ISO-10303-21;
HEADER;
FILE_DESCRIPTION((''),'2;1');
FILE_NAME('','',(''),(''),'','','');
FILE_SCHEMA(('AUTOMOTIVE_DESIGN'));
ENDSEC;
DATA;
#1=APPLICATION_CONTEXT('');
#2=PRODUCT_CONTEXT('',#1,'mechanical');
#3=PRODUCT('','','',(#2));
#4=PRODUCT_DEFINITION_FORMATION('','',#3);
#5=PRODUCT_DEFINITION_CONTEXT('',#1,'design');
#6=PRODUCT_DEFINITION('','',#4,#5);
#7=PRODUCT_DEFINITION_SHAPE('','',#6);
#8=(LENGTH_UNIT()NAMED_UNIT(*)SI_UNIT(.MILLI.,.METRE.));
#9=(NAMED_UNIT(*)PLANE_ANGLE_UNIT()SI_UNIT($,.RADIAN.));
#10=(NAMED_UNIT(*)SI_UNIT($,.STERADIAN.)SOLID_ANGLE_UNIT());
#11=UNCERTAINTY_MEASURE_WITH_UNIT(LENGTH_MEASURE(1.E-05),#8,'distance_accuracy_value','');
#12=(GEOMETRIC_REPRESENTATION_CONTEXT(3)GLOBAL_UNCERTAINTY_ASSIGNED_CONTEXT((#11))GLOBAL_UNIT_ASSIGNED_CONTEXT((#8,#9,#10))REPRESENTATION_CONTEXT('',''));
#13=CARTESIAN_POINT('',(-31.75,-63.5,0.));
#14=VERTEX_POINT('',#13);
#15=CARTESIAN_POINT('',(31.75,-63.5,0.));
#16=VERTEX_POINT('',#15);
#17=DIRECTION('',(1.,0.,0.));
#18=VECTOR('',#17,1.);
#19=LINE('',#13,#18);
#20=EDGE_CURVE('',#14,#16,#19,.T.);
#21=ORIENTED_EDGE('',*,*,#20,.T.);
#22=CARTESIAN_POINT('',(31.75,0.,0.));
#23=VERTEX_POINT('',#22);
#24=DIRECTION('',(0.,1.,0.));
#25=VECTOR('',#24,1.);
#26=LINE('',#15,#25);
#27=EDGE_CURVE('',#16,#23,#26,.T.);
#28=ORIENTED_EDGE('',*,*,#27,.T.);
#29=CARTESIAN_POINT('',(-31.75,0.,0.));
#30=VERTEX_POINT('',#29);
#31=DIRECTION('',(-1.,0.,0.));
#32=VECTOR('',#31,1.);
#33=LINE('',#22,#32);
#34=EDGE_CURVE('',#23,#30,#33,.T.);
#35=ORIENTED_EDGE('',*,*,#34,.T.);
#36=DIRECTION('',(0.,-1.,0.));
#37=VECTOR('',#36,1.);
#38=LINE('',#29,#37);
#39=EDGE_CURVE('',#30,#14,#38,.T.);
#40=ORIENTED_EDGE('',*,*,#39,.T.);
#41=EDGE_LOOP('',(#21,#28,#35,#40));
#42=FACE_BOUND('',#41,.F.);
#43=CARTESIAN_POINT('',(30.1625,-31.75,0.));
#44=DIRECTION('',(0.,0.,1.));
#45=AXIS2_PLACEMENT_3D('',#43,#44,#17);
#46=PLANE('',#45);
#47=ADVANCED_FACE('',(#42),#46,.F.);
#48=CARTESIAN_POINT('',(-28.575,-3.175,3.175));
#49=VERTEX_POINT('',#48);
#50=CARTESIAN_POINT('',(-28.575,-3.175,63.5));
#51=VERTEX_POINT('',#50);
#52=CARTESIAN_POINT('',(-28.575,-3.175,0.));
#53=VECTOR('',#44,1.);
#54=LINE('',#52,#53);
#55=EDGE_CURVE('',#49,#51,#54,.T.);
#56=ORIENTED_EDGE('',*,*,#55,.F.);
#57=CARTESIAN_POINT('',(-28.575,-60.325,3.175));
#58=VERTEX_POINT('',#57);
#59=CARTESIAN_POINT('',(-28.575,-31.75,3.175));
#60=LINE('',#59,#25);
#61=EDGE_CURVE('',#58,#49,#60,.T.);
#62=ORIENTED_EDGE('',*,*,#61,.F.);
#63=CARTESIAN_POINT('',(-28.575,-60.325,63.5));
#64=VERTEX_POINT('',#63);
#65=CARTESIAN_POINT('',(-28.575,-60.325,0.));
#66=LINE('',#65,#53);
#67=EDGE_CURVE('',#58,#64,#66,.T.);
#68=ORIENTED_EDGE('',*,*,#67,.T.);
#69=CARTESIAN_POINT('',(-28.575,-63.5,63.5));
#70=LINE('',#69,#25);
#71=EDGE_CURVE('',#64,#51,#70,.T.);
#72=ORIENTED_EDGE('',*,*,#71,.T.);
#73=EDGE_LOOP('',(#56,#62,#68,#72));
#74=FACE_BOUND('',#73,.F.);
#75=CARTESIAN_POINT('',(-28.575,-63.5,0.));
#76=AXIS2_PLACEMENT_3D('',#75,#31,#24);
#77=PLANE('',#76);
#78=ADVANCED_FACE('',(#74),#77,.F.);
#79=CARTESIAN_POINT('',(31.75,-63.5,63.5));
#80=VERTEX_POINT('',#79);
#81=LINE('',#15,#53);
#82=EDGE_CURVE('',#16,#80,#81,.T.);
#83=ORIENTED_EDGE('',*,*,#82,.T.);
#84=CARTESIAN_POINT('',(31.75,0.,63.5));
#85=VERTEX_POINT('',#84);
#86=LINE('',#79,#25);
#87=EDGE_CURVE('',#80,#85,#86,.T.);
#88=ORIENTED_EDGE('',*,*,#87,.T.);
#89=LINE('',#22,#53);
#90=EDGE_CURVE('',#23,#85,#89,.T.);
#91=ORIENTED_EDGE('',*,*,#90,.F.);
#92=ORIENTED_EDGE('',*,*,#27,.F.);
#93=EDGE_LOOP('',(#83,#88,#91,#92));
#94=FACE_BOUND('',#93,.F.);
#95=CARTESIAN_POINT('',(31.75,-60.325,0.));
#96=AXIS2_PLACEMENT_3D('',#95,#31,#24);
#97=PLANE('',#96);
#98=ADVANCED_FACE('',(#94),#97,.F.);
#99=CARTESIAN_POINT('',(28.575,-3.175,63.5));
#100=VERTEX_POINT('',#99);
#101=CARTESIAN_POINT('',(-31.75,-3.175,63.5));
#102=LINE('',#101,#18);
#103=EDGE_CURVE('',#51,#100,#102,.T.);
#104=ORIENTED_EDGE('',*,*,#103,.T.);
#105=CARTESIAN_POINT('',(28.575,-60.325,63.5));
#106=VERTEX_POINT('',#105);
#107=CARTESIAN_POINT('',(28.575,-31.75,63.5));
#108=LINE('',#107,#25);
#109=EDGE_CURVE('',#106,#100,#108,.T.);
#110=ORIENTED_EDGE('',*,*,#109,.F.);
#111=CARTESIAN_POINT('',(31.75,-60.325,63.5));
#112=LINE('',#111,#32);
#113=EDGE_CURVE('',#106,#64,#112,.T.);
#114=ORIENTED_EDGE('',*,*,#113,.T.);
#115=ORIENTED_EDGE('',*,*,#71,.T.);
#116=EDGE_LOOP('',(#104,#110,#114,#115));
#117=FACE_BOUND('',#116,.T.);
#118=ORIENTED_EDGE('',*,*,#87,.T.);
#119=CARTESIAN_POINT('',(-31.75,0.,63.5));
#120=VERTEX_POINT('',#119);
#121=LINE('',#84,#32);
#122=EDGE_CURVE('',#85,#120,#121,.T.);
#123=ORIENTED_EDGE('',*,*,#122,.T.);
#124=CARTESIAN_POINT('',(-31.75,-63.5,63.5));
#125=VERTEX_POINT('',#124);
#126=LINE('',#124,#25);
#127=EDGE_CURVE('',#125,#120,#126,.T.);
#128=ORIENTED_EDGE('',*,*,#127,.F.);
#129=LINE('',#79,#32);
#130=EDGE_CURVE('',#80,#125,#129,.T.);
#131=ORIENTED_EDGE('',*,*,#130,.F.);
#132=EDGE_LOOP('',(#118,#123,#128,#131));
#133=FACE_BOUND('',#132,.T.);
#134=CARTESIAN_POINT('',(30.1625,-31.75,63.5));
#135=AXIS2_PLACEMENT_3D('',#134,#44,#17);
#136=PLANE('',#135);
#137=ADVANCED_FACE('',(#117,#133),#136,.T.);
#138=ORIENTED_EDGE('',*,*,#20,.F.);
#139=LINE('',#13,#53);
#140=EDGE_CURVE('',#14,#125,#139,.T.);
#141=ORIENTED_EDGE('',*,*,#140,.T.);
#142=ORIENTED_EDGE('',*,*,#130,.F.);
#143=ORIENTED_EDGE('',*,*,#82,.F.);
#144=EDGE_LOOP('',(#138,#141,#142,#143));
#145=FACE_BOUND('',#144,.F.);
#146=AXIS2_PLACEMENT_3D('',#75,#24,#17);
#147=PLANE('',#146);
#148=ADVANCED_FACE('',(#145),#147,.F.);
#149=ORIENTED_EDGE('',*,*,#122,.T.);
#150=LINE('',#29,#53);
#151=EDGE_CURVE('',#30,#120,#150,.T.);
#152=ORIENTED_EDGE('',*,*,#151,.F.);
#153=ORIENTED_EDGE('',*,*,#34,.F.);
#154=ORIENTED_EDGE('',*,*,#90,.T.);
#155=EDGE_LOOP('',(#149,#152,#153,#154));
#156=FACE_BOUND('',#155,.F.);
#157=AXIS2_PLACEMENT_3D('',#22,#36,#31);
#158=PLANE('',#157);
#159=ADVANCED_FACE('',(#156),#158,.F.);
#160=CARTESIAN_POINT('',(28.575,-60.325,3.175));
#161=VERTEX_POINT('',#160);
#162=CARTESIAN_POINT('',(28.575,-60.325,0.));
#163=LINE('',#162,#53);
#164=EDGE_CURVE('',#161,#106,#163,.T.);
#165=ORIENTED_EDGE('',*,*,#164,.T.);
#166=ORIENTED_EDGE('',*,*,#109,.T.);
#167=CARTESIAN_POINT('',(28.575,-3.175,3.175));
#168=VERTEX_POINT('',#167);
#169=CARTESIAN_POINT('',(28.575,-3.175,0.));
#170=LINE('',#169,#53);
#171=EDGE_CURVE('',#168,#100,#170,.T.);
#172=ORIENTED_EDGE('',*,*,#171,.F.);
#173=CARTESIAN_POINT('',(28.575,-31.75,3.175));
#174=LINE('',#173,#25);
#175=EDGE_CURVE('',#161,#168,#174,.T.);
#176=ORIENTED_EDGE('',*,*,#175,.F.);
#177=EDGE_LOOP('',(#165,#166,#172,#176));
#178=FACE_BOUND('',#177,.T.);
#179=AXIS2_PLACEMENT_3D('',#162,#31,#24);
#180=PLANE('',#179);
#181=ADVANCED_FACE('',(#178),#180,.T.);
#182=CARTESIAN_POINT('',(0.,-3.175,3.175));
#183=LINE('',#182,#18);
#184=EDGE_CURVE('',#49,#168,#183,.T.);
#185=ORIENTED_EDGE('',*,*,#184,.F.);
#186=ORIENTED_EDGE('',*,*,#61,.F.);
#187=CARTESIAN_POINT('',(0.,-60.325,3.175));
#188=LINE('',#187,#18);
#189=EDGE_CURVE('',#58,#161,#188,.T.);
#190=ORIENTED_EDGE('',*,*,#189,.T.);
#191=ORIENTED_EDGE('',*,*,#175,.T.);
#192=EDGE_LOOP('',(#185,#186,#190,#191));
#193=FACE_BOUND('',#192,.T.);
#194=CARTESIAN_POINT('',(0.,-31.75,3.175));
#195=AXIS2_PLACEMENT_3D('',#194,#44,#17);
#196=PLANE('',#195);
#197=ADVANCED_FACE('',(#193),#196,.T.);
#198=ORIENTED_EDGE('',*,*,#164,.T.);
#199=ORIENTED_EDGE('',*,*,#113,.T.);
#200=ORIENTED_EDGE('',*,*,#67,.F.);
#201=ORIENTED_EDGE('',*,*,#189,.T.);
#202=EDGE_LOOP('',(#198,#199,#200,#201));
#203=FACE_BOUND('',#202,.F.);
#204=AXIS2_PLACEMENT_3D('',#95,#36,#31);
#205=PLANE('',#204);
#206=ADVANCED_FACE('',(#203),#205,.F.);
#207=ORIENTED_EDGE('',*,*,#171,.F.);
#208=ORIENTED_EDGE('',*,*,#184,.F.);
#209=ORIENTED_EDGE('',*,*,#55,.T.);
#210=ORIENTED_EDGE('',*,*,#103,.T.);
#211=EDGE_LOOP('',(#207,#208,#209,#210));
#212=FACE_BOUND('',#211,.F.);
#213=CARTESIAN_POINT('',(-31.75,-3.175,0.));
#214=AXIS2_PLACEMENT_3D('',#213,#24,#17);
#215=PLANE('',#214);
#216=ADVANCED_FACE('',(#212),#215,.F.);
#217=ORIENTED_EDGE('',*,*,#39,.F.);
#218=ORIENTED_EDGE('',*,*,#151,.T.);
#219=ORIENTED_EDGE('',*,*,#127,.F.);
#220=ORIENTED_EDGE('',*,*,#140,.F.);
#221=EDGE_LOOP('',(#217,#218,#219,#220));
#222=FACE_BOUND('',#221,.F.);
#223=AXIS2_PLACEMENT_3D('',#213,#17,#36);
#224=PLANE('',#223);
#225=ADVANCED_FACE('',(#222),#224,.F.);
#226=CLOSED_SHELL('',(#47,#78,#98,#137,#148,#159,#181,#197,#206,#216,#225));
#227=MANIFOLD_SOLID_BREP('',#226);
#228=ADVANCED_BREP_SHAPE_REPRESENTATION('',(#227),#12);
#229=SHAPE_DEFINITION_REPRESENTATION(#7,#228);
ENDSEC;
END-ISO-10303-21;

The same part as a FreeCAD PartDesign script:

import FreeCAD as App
import Part
import Sketcher
from FreeCAD import Vector
Q = App.Units.Quantity

doc = App.newDocument("Part")
body = doc.addObject("PartDesign::Body", "Body")

sketch1 = body.newObject("Sketcher::SketchObject", "Sketch")
sketch1.AttachmentSupport = (doc.getObject("XY_Plane"), [""])
sketch1.MapMode = "FlatFace"
sketch1.addGeometry([
    Part.LineSegment(Vector(-29, -3, 0), Vector(-29, -60, 0)),
    Part.LineSegment(Vector(-29, -60, 0), Vector(29, -60, 0)),
    Part.LineSegment(Vector(29, -60, 0), Vector(29, -3, 0)),
    Part.LineSegment(Vector(29, -3, 0), Vector(-29, -3, 0)),
], False)
sketch1.addConstraint([
    Sketcher.Constraint("Coincident", 0, 2, 1, 1),
    Sketcher.Constraint("Coincident", 1, 2, 2, 1),
    Sketcher.Constraint("Coincident", 2, 2, 3, 1),
    Sketcher.Constraint("Coincident", 3, 2, 0, 1),
    Sketcher.Constraint("Vertical", 0),
    Sketcher.Constraint("Horizontal", 1),
    Sketcher.Constraint("Vertical", 2),
    Sketcher.Constraint("Horizontal", 3),
    Sketcher.Constraint("Equal", 3, 0),
    Sketcher.Constraint("DistanceX", 1, 1, 1, 2, Q("2.25 in")),
    Sketcher.Constraint("DistanceX", 0, 2, -1, 1, Q("1.125 in")),
    Sketcher.Constraint("DistanceY", 0, 2, -1, 1, Q("2.375 in")),
])
pad1 = body.newObject("PartDesign::Pad", "Pad")
pad1.Profile = sketch1
pad1.Length = Q("0.125 in")

sketch2 = body.newObject("Sketcher::SketchObject", "Sketch001")
sketch2.AttachmentSupport = (doc.getObject("XY_Plane"), [""])
sketch2.MapMode = "FlatFace"
sketch2.addGeometry([
    Part.LineSegment(Vector(31.8, 0, 0), Vector(-31.8, 0, 0)),
    Part.LineSegment(Vector(-31.8, 0, 0), Vector(-31.8, -3.2, 0)),
    Part.LineSegment(Vector(-31.8, -3.2, 0), Vector(31.8, -3.2, 0)),
    Part.LineSegment(Vector(31.8, -3.2, 0), Vector(31.8, 0, 0)),
], False)
sketch2.addConstraint([
    Sketcher.Constraint("Coincident", 0, 2, 1, 1),
    Sketcher.Constraint("Coincident", 1, 2, 2, 1),
    Sketcher.Constraint("Coincident", 2, 2, 3, 1),
    Sketcher.Constraint("Coincident", 3, 2, 0, 1),
    Sketcher.Constraint("Horizontal", 0),
    Sketcher.Constraint("Vertical", 1),
    Sketcher.Constraint("Horizontal", 2),
    Sketcher.Constraint("Vertical", 3),
    Sketcher.Constraint("Symmetric", 0, 2, 3, 2, -1, 1),
    Sketcher.Constraint("DistanceX", 0, 2, 0, 1, Q("2.5 in")),
    Sketcher.Constraint("DistanceY", 1, 2, 1, 1, Q("0.125 in")),
])
pad2 = body.newObject("PartDesign::Pad", "Pad001")
pad2.Profile = sketch2
pad2.Length = Q("2.5 in")

sketch3 = body.newObject("Sketcher::SketchObject", "Sketch002")
sketch3.AttachmentSupport = (doc.getObject("XY_Plane"), [""])
sketch3.MapMode = "FlatFace"
sketch3.addGeometry([
    Part.LineSegment(Vector(-31.8, -3.2, 0), Vector(-31.8, -63.5, 0)),
    Part.LineSegment(Vector(-31.8, -63.5, 0), Vector(-28.6, -63.5, 0)),
    Part.LineSegment(Vector(-28.6, -63.5, 0), Vector(-28.6, -3.2, 0)),
    Part.LineSegment(Vector(-28.6, -3.2, 0), Vector(-31.8, -3.2, 0)),
], False)
sketch3.addConstraint([
    Sketcher.Constraint("Coincident", 0, 2, 1, 1),
    Sketcher.Constraint("Coincident", 1, 2, 2, 1),
    Sketcher.Constraint("Coincident", 2, 2, 3, 1),
    Sketcher.Constraint("Coincident", 3, 2, 0, 1),
    Sketcher.Constraint("Vertical", 0),
    Sketcher.Constraint("Horizontal", 1),
    Sketcher.Constraint("Vertical", 2),
    Sketcher.Constraint("Horizontal", 3),
    Sketcher.Constraint("DistanceY", 0, 2, -1, 1, Q("2.5 in")),
    Sketcher.Constraint("DistanceX", 1, 1, 1, 2, Q("0.125 in")),
    Sketcher.Constraint("DistanceY", 0, 2, 0, 1, Q("2.375 in")),
    Sketcher.Constraint("DistanceX", 0, 2, -1, 1, Q("1.25 in")),
])
pad3 = body.newObject("PartDesign::Pad", "Pad002")
pad3.Profile = sketch3
pad3.Length = Q("2.5 in")

sketch4 = body.newObject("Sketcher::SketchObject", "Sketch003")
sketch4.AttachmentSupport = (doc.getObject("XY_Plane"), [""])
sketch4.MapMode = "FlatFace"
sketch4.addGeometry([
    Part.LineSegment(Vector(31.8, -63.5, 0), Vector(31.8, -60.3, 0)),
    Part.LineSegment(Vector(31.8, -60.3, 0), Vector(-28.6, -60.3, 0)),
    Part.LineSegment(Vector(-28.6, -60.3, 0), Vector(-28.6, -63.5, 0)),
    Part.LineSegment(Vector(-28.6, -63.5, 0), Vector(31.8, -63.5, 0)),
], False)
sketch4.addConstraint([
    Sketcher.Constraint("Coincident", 0, 2, 1, 1),
    Sketcher.Constraint("Coincident", 1, 2, 2, 1),
    Sketcher.Constraint("Coincident", 2, 2, 3, 1),
    Sketcher.Constraint("Coincident", 3, 2, 0, 1),
    Sketcher.Constraint("Vertical", 0),
    Sketcher.Constraint("Horizontal", 1),
    Sketcher.Constraint("Vertical", 2),
    Sketcher.Constraint("Horizontal", 3),
    Sketcher.Constraint("DistanceY", 2, 2, -1, 1, Q("2.5 in")),
    Sketcher.Constraint("DistanceX", 1, 2, 1, 1, Q("2.375 in")),
    Sketcher.Constraint("DistanceY", 0, 1, 0, 2, Q("0.125 in")),
    Sketcher.Constraint("DistanceX", -1, 1, 0, 2, Q("1.25 in")),
])
pad4 = body.newObject("PartDesign::Pad", "Pad003")
pad4.Profile = sketch4
pad4.Length = Q("2.5 in")

sketch5 = body.newObject("Sketcher::SketchObject", "Sketch004")
sketch5.AttachmentSupport = (doc.getObject("XY_Plane"), [""])
sketch5.MapMode = "FlatFace"
sketch5.addGeometry([
    Part.LineSegment(Vector(28.6, -3.2, 0), Vector(28.6, -60.3, 0)),
    Part.LineSegment(Vector(28.6, -60.3, 0), Vector(31.8, -60.3, 0)),
    Part.LineSegment(Vector(31.8, -60.3, 0), Vector(31.8, -3.2, 0)),
    Part.LineSegment(Vector(31.8, -3.2, 0), Vector(28.6, -3.2, 0)),
], False)
sketch5.addConstraint([
    Sketcher.Constraint("Coincident", 0, 2, 1, 1),
    Sketcher.Constraint("Coincident", 1, 2, 2, 1),
    Sketcher.Constraint("Coincident", 2, 2, 3, 1),
    Sketcher.Constraint("Coincident", 3, 2, 0, 1),
    Sketcher.Constraint("Vertical", 0),
    Sketcher.Constraint("Horizontal", 1),
    Sketcher.Constraint("Vertical", 2),
    Sketcher.Constraint("Horizontal", 3),
    Sketcher.Constraint("DistanceY", 0, 2, 0, 1, Q("2.25 in")),
    Sketcher.Constraint("DistanceX", 1, 1, 1, 2, Q("0.125 in")),
    Sketcher.Constraint("DistanceX", -1, 1, 1, 2, Q("1.25 in")),
    Sketcher.Constraint("DistanceY", 0, 2, -1, 1, Q("2.375 in")),
])
pad5 = body.newObject("PartDesign::Pad", "Pad004")
pad5.Profile = sketch5
pad5.Length = Q("2.5 in")

doc.recompute()
